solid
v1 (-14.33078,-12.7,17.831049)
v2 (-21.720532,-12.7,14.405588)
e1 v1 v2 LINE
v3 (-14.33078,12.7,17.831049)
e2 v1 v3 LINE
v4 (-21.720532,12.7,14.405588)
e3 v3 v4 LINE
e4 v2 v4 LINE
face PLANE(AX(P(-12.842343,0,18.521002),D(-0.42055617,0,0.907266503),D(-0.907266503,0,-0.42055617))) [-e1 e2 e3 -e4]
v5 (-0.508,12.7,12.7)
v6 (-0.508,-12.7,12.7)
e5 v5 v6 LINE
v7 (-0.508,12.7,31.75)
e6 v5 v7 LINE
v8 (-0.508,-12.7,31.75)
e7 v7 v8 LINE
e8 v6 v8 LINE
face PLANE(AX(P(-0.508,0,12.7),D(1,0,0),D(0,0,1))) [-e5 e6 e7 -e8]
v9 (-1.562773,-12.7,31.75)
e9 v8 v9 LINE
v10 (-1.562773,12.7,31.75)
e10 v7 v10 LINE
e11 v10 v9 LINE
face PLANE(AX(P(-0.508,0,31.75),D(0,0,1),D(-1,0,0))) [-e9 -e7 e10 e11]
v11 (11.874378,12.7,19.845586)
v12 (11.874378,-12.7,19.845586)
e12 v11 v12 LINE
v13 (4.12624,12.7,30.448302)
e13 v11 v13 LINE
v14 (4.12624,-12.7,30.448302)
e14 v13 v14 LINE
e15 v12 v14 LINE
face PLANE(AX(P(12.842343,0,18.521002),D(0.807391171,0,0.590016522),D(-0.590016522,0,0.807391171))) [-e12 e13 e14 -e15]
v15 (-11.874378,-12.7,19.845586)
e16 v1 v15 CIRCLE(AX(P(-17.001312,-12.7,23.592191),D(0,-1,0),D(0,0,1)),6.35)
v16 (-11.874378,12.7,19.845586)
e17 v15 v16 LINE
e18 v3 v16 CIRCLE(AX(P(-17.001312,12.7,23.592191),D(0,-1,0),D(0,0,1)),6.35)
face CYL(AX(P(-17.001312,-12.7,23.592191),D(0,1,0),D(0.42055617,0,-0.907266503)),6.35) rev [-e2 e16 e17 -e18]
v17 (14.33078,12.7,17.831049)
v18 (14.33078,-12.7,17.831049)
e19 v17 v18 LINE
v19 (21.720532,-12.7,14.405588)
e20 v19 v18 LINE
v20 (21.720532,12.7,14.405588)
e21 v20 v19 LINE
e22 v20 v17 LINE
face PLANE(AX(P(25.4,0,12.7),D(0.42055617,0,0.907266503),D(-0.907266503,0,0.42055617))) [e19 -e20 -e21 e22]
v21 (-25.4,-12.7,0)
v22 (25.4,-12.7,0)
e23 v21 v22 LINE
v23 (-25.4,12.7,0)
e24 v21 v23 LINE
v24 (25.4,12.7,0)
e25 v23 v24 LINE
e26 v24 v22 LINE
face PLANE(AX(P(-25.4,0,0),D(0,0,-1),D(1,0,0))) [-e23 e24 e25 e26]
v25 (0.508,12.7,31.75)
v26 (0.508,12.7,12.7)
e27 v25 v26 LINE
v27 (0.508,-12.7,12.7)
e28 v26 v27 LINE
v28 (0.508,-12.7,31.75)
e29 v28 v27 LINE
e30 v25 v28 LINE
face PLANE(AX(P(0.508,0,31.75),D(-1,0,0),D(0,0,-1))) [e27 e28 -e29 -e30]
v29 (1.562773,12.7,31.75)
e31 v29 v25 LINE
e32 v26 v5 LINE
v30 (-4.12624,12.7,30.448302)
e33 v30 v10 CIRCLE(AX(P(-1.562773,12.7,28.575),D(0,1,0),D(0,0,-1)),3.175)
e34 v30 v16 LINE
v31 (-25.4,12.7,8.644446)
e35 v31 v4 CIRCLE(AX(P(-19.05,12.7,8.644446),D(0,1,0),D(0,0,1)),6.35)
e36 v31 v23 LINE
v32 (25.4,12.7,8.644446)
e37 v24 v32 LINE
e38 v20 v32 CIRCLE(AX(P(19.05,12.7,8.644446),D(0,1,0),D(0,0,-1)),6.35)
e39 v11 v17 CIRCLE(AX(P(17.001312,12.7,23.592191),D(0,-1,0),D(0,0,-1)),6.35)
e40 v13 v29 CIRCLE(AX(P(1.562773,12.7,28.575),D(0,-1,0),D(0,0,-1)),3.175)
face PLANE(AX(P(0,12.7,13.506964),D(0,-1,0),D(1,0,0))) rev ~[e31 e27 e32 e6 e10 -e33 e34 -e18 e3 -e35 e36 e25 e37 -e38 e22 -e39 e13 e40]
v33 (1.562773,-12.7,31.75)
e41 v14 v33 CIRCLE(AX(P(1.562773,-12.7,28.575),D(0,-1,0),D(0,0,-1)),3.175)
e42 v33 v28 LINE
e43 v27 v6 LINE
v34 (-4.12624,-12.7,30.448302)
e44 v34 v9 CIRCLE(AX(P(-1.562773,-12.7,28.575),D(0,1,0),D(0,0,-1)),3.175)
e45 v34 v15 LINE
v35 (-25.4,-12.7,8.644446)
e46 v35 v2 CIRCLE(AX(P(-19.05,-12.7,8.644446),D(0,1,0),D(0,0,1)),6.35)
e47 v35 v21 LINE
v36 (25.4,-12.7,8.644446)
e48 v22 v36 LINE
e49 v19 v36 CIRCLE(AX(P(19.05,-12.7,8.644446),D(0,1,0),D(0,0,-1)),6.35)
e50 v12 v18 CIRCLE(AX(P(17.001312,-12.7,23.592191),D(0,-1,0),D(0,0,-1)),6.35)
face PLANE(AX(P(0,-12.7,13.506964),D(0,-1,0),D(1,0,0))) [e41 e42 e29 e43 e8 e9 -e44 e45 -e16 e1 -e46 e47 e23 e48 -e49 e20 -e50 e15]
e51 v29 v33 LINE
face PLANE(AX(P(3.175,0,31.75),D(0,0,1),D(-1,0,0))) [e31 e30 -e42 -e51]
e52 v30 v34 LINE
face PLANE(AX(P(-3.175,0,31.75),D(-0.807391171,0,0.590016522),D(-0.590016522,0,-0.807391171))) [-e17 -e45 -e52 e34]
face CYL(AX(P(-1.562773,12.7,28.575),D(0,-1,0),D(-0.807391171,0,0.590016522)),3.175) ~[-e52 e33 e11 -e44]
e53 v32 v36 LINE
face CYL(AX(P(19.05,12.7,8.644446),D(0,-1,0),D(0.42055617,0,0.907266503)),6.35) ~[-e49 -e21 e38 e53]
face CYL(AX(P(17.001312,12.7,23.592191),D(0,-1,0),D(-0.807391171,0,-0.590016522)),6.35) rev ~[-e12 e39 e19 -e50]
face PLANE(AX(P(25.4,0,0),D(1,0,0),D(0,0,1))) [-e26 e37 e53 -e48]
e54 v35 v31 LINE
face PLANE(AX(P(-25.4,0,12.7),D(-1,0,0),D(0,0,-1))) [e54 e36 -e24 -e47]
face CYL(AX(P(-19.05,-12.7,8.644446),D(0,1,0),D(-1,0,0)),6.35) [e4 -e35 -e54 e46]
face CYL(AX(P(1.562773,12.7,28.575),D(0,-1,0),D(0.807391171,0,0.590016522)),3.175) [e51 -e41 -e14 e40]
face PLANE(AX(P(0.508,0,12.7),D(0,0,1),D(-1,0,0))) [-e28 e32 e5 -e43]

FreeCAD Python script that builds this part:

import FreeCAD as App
import Part
import Sketcher
from FreeCAD import Vector
Q = App.Units.Quantity


def edges_at(feature, points):
    """Names of the edges that pass closest to the given points."""
    edges = feature.Shape.Edges
    near = lambda p: min(range(len(edges)), key=lambda i: edges[i].distToShape(Part.Vertex(*p))[0])
    return sorted({f"Edge{near(p) + 1}" for p in points})

doc = App.newDocument("Part")
body = doc.addObject("PartDesign::Body", "Body")

# Sketch on XZ plane
sketch1 = body.newObject("Sketcher::SketchObject", "Sketch")
sketch1.AttachmentSupport = (doc.getObject("XZ_Plane"), [""])
sketch1.MapMode = "FlatFace"
sketch1.addGeometry(Part.LineSegment(Vector(-25.4, 0, 0), Vector(25.4, 0, 0)), False)
sketch1.addGeometry(Part.LineSegment(Vector(25.4, 0, 0), Vector(25.4, 12.7, 0)), False)
sketch1.addGeometry(Part.LineSegment(Vector(25.4, 12.7, 0), Vector(12.8, 18.5, 0)), False)
sketch1.addGeometry(Part.LineSegment(Vector(12.8, 18.5, 0), Vector(3.2, 31.8, 0)), False)
sketch1.addGeometry(Part.LineSegment(Vector(3.2, 31.8, 0), Vector(0.5, 31.8, 0)), False)
sketch1.addGeometry(Part.LineSegment(Vector(0.5, 31.8, 0), Vector(0.5, 12.7, 0)), False)
sketch1.addGeometry(Part.LineSegment(Vector(0.5, 12.7, 0), Vector(-0.5, 12.7, 0)), False)
sketch1.addGeometry(Part.LineSegment(Vector(-0.5, 12.7, 0), Vector(-0.5, 31.8, 0)), False)
sketch1.addGeometry(Part.LineSegment(Vector(-0.5, 31.8, 0), Vector(-3.2, 31.8, 0)), False)
sketch1.addGeometry(Part.LineSegment(Vector(-3.2, 31.8, 0), Vector(-12.8, 18.5, 0)), False)
sketch1.addGeometry(Part.LineSegment(Vector(-12.8, 18.5, 0), Vector(-25.4, 12.7, 0)), False)
sketch1.addGeometry(Part.LineSegment(Vector(-25.4, 12.7, 0), Vector(-25.4, 0, 0)), False)
sketch1.addConstraint(Sketcher.Constraint("Coincident", 0, 2, 1, 1))
sketch1.addConstraint(Sketcher.Constraint("Coincident", 1, 2, 2, 1))
sketch1.addConstraint(Sketcher.Constraint("Coincident", 2, 2, 3, 1))
sketch1.addConstraint(Sketcher.Constraint("Coincident", 3, 2, 4, 1))
sketch1.addConstraint(Sketcher.Constraint("Coincident", 4, 2, 5, 1))
sketch1.addConstraint(Sketcher.Constraint("Coincident", 5, 2, 6, 1))
sketch1.addConstraint(Sketcher.Constraint("Coincident", 6, 2, 7, 1))
sketch1.addConstraint(Sketcher.Constraint("Coincident", 7, 2, 8, 1))
sketch1.addConstraint(Sketcher.Constraint("Coincident", 8, 2, 9, 1))
sketch1.addConstraint(Sketcher.Constraint("Coincident", 9, 2, 10, 1))
sketch1.addConstraint(Sketcher.Constraint("Coincident", 10, 2, 11, 1))
sketch1.addConstraint(Sketcher.Constraint("Coincident", 11, 2, 0, 1))
sketch1.addConstraint(Sketcher.Constraint("Horizontal", 0))
sketch1.addConstraint(Sketcher.Constraint("Vertical", 1))
sketch1.addConstraint(Sketcher.Constraint("Horizontal", 4))
sketch1.addConstraint(Sketcher.Constraint("Vertical", 5))
sketch1.addConstraint(Sketcher.Constraint("Horizontal", 6))
sketch1.addConstraint(Sketcher.Constraint("Vertical", 7))
sketch1.addConstraint(Sketcher.Constraint("Horizontal", 8))
sketch1.addConstraint(Sketcher.Constraint("Vertical", 11))
sketch1.addConstraint(Sketcher.Constraint("Symmetric", 0, 2, 11, 2, -1, 1))
sketch1.addConstraint(Sketcher.Constraint("Symmetric", 4, 2, 7, 2, -2))
sketch1.addConstraint(Sketcher.Constraint("Symmetric", 2, 2, 9, 2, -2))
sketch1.addConstraint(Sketcher.Constraint("Horizontal", 1, 2, 5, 2))
sketch1.addConstraint(Sketcher.Constraint("Horizontal", 6, 2, 10, 2))
sketch1.addConstraint(Sketcher.Constraint("Equal", 4, 8))
sketch1.addConstraint(Sketcher.Constraint("DistanceX", 0, 1, 0, 2, Q("2 in")))
sketch1.addConstraint(Sketcher.Constraint("DistanceY", 1, 1, 1, 2, Q("0.5 in")))
sketch1.addConstraint(Sketcher.Constraint("DistanceX", 6, 2, 6, 1, Q("0.04 in")))
sketch1.addConstraint(Sketcher.Constraint("DistanceY", 5, 2, 5, 1, Q("0.75 in")))
sketch1.addConstraint(Sketcher.Constraint("DistanceX", 4, 2, 4, 1, Q("0.105 in")))
sketch1.addConstraint(Sketcher.Constraint("Distance", 2, Q("13.8412 mm")))
sketch1.addConstraint(Sketcher.Constraint("DistanceY", -1, 1, 2, 2, Q("18.521002 mm")))
pad1 = body.newObject("PartDesign::Pad", "Pad")
pad1.Profile = sketch1
pad1.Length = Q("1 in")
pad1.Midplane = True
doc.recompute()

fillet = body.newObject("PartDesign::Fillet", "Fillet")
fillet.Base = (pad1, edges_at(pad1, [
    (25.4, 0, 12.7),
    (12.842, 0, 18.521),
    (-12.842, 0, 18.521),
    (-25.4, 0, 12.7),
]))
fillet.Radius = Q("0.25 in")
doc.recompute()

fillet2 = body.newObject("PartDesign::Fillet", "Fillet001")
fillet2.Base = (fillet, edges_at(fillet, [(3.175, 0, 31.75), (-3.175, 0, 31.75)]))
fillet2.Radius = Q("0.125 in")

doc.recompute()
